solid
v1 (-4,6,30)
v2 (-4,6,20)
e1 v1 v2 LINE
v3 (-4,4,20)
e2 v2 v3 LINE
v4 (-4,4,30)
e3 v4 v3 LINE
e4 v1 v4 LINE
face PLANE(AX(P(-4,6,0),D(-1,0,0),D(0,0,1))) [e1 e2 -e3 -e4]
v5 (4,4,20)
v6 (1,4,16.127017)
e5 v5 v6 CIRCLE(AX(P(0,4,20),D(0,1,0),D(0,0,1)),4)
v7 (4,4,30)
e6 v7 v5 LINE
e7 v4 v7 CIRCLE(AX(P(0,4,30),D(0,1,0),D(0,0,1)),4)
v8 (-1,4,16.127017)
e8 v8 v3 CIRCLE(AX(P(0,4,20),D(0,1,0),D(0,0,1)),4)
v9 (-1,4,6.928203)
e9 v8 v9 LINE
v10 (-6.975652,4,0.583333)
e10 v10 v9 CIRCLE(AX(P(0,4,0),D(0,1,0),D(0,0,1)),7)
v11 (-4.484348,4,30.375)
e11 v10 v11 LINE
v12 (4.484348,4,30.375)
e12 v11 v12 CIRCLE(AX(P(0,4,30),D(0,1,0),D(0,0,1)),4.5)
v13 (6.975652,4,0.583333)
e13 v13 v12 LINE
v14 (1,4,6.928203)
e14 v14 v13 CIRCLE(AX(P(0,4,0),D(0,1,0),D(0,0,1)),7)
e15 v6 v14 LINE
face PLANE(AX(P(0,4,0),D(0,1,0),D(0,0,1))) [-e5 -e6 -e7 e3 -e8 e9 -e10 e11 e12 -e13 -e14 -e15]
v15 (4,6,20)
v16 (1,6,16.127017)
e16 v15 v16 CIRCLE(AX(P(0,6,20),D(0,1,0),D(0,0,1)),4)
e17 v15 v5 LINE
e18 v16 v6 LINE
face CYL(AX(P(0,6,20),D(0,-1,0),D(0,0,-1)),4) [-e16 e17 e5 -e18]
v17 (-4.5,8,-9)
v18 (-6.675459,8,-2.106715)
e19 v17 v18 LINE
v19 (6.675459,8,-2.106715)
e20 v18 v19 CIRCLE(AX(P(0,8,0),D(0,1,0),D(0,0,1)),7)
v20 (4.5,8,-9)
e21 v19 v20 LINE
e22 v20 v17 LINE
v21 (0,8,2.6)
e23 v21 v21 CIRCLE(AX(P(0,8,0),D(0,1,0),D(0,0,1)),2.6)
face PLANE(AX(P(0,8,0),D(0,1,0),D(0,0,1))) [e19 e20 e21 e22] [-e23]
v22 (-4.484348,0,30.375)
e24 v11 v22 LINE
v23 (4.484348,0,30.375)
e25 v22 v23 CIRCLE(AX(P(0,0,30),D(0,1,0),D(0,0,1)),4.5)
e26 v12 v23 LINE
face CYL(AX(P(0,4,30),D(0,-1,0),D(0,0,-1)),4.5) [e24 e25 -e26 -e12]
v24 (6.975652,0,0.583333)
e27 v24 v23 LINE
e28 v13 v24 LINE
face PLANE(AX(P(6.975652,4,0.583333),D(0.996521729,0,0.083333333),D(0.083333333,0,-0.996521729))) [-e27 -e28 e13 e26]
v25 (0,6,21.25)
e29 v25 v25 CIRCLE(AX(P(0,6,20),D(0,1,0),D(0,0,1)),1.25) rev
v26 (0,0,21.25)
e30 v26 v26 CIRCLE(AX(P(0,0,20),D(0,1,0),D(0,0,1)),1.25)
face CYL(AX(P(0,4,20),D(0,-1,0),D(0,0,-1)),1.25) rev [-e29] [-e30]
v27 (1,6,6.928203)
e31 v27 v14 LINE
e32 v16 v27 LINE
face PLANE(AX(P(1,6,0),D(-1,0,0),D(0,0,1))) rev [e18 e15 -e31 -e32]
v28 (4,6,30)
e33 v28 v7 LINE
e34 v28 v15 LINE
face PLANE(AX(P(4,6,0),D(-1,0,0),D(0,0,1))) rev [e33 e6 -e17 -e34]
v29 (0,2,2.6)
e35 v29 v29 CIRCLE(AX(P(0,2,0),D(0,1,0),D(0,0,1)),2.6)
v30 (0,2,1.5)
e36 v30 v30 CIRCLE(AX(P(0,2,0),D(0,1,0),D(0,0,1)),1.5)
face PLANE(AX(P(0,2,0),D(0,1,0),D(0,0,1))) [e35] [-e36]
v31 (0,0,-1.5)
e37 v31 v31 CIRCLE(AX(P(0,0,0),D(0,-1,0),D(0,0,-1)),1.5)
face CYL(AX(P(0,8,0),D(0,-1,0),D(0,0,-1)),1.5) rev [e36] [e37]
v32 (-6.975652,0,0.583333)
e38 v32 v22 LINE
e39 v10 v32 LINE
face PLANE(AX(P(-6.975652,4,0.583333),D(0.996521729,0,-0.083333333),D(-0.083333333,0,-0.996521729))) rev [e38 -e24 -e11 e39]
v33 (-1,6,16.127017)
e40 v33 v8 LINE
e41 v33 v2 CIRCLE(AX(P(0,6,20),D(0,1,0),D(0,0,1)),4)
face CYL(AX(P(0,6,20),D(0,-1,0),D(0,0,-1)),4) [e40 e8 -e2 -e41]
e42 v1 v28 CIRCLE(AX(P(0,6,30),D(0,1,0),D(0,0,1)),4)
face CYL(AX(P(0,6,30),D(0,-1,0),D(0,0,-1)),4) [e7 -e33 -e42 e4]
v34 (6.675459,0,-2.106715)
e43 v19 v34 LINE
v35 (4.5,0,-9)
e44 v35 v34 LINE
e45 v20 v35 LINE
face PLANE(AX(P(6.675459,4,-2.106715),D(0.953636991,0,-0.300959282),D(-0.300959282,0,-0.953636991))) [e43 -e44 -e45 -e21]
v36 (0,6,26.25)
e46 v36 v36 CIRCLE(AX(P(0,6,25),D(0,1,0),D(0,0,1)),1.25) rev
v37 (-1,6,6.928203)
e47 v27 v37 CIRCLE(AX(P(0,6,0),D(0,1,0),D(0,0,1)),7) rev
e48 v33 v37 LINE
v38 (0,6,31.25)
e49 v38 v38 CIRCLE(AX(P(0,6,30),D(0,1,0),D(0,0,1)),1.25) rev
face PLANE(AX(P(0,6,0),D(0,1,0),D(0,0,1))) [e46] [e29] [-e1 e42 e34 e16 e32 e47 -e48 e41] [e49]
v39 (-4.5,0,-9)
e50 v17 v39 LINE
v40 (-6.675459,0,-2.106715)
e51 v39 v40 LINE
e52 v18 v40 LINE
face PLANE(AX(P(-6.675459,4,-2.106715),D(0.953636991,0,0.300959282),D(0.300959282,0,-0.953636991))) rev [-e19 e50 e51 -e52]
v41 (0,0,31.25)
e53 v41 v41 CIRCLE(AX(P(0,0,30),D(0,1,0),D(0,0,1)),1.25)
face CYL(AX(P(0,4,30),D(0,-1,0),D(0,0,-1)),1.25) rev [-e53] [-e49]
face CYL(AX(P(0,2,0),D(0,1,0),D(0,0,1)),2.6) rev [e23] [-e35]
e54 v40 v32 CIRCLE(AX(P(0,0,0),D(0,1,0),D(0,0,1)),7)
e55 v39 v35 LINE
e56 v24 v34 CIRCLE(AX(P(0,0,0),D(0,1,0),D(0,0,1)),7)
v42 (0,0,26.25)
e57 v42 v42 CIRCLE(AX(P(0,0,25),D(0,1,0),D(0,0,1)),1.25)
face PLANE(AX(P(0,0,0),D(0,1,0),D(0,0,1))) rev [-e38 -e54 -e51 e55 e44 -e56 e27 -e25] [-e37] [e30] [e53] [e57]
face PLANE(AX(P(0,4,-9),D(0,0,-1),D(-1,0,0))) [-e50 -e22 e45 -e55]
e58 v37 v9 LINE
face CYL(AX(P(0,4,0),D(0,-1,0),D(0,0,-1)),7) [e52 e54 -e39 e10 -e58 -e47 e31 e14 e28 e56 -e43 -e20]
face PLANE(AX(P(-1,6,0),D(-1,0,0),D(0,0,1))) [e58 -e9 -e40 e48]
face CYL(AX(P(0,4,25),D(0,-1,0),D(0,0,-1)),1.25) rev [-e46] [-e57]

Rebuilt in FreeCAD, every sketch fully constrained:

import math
import FreeCAD as App
import Part
import Sketcher
Q = App.Units.Quantity

doc = App.newDocument("Part")
body = doc.addObject("PartDesign::Body", "Body")

# Sketch on XZ plane
sketch1 = doc.addObject("Sketcher::SketchObject", "Sketch")
body.addObject(sketch1)
sketch1.AttachmentSupport = (doc.XZ_Plane, [""])
sketch1.MapMode = "FlatFace"
sketch1.addGeometry([
    Part.LineSegment(App.Vector(4.5, -9, 0), App.Vector(-4.5, -9, 0)),  # 0
    Part.LineSegment(App.Vector(-4.5, -9, 0), App.Vector(-6.7, -2.1, 0)),  # 1
    Part.ArcOfCircle(Part.Circle(App.Vector(0, 0, 0), App.Vector(0, 0, 1), 7), math.radians(175), math.radians(198)),  # 2
    Part.LineSegment(App.Vector(-7, 0.6, 0), App.Vector(-4.5, 30.4, 0)),  # 3
    Part.ArcOfCircle(Part.Circle(App.Vector(0, 30, 0), App.Vector(0, 0, 1), 4.5), math.radians(5), math.radians(175)),  # 4
    Part.LineSegment(App.Vector(4.5, 30.4, 0), App.Vector(7, 0.6, 0)),  # 5
    Part.ArcOfCircle(Part.Circle(App.Vector(0, 0, 0), App.Vector(0, 0, 1), 7), math.radians(-18), math.radians(5)),  # 6
    Part.LineSegment(App.Vector(6.7, -2.1, 0), App.Vector(4.5, -9, 0)),  # 7
    Part.Circle(App.Vector(0, 30, 0), App.Vector(0, 0, 1), 1.2),  # 8
    Part.Circle(App.Vector(0, 25, 0), App.Vector(0, 0, 1), 1.2),  # 9
    Part.Circle(App.Vector(0, 20, 0), App.Vector(0, 0, 1), 1.2),  # 10
], False)
sketch1.addConstraint([
    Sketcher.Constraint("Coincident", 0, 2, 1, 1),
    Sketcher.Constraint("Tangent", 1, 2, 2, 2),
    Sketcher.Constraint("Tangent", 2, 1, 3, 1),
    Sketcher.Constraint("Tangent", 3, 2, 4, 2),
    Sketcher.Constraint("Tangent", 4, 1, 5, 1),
    Sketcher.Constraint("Tangent", 5, 2, 6, 2),
    Sketcher.Constraint("Tangent", 6, 1, 7, 1),
    Sketcher.Constraint("Coincident", 7, 2, 0, 1),
    Sketcher.Constraint("Horizontal", 0),
    Sketcher.Constraint("Coincident", 2, 3, -1, 1),
    Sketcher.Constraint("Coincident", 6, 3, -1, 1),
    Sketcher.Constraint("Coincident", 8, 3, 4, 3),
    Sketcher.Constraint("Equal", 2, 6),
    Sketcher.Constraint("Equal", 8, 9),
    Sketcher.Constraint("Equal", 9, 10),
    Sketcher.Constraint("PointOnObject", 4, 3, -2),
    Sketcher.Constraint("PointOnObject", 9, 3, -2),
    Sketcher.Constraint("PointOnObject", 10, 3, -2),
    Sketcher.Constraint("Horizontal", 1, 2, 6, 1),
    Sketcher.Constraint("Radius", 2, Q("7 mm")),
    Sketcher.Constraint("Diameter", 8, Q("2.5 mm")),
    Sketcher.Constraint("Radius", 4, Q("4.5 mm")),
    Sketcher.Constraint("DistanceX", 0, 2, 0, 1, Q("9 mm")),
    Sketcher.Constraint("DistanceY", -1, 1, 4, 3, Q("30 mm")),
    Sketcher.Constraint("DistanceY", -1, 1, 9, 3, Q("25 mm")),
    Sketcher.Constraint("DistanceY", -1, 1, 10, 3, Q("20 mm")),
    Sketcher.Constraint("DistanceY", 0, 2, -1, 1, Q("9 mm")),
])
pad1 = doc.addObject("PartDesign::Pad", "Pad")
body.addObject(pad1)
pad1.Profile = sketch1
pad1.Length = 4
pad1.Reversed = True

# Sketch on XZ plane
sketch2 = doc.addObject("Sketcher::SketchObject", "Sketch001")
body.addObject(sketch2)
sketch2.AttachmentSupport = (doc.XZ_Plane, [""])
sketch2.MapMode = "FlatFace"
sketch2.AttachmentOffset = App.Placement(App.Vector(0, 0, -4), App.Rotation())
sketch2.addGeometry([
    Part.ArcOfCircle(Part.Circle(App.Vector(0, 0, 0), App.Vector(0, 0, 1), 7), math.radians(175), math.radians(198)),  # 0
    Part.ArcOfCircle(Part.Circle(App.Vector(0, 0, 0), App.Vector(0, 0, 1), 7), math.radians(5), math.radians(175)),  # 1
    Part.ArcOfCircle(Part.Circle(App.Vector(0, 0, 0), App.Vector(0, 0, 1), 7), math.radians(0), math.radians(4.78)),  # 2
    Part.ArcOfCircle(Part.Circle(App.Vector(0, 0, 0), App.Vector(0, 0, 1), 7), math.radians(-17.52), math.radians(0)),  # 3
    Part.LineSegment(App.Vector(6.7, -2.1, 0), App.Vector(4.5, -9, 0)),  # 4
    Part.LineSegment(App.Vector(4.5, -9, 0), App.Vector(-4.5, -9, 0)),  # 5
    Part.LineSegment(App.Vector(-4.5, -9, 0), App.Vector(-6.7, -2.1, 0)),  # 6
], False)
sketch2.addConstraint([
    Sketcher.Constraint("Tangent", 0, 1, 1, 2),
    Sketcher.Constraint("Tangent", 1, 1, 2, 2),
    Sketcher.Constraint("Tangent", 2, 1, 3, 2),
    Sketcher.Constraint("Tangent", 3, 1, 4, 1),
    Sketcher.Constraint("Coincident", 4, 2, 5, 1),
    Sketcher.Constraint("Coincident", 5, 2, 6, 1),
    Sketcher.Constraint("Tangent", 6, 2, 0, 2),
    Sketcher.Constraint("Horizontal", 5),
    Sketcher.Constraint("Coincident", 0, 3, -1, 1),
    Sketcher.Constraint("Coincident", 2, 3, -1, 1),
    Sketcher.Constraint("Equal", 2, 3),
    Sketcher.Constraint("PointOnObject", 2, 1, -1),
    Sketcher.Constraint("Horizontal", 0, 1, 1, 1),
    Sketcher.Constraint("Horizontal", 3, 1, 6, 2),
    Sketcher.Constraint("Radius", 0, Q("7 mm")),
    Sketcher.Constraint("DistanceX", 5, 2, 5, 1, Q("9 mm")),
    Sketcher.Constraint("DistanceY", 4, 2, -1, 1, Q("9 mm")),
    Sketcher.Constraint("DistanceX", 0, 1, 2, 3, Q("6.975652 mm")),
])
pad2 = doc.addObject("PartDesign::Pad", "Pad001")
body.addObject(pad2)
pad2.Profile = sketch2
pad2.Length = 4
pad2.Reversed = True

# Sketch on XZ plane
sketch3 = doc.addObject("Sketcher::SketchObject", "Sketch002")
body.addObject(sketch3)
sketch3.AttachmentSupport = (doc.XZ_Plane, [""])
sketch3.MapMode = "FlatFace"
sketch3.AttachmentOffset = App.Placement(App.Vector(0, 0, -4), App.Rotation())
sketch3.addGeometry([
    Part.ArcOfCircle(Part.Circle(App.Vector(0, 20, 0), App.Vector(0, 0, 1), 4), math.radians(-76), math.radians(0)),  # 0
    Part.LineSegment(App.Vector(1, 16.1, 0), App.Vector(1, 6.9, 0)),  # 1
    Part.ArcOfCircle(Part.Circle(App.Vector(0, 0, 0), App.Vector(0, 0, 1), 7), math.radians(81.79), math.radians(98.21)),  # 2
    Part.LineSegment(App.Vector(-1, 6.9, 0), App.Vector(-1, 16.1, 0)),  # 3
    Part.ArcOfCircle(Part.Circle(App.Vector(0, 20, 0), App.Vector(0, 0, 1), 4), math.radians(180), math.radians(256)),  # 4
    Part.LineSegment(App.Vector(-4, 20, 0), App.Vector(-4, 30, 0)),  # 5
    Part.ArcOfCircle(Part.Circle(App.Vector(0, 30, 0), App.Vector(0, 0, 1), 4), math.radians(0), math.radians(180)),  # 6
    Part.LineSegment(App.Vector(4, 30, 0), App.Vector(4, 20, 0)),  # 7
    Part.Circle(App.Vector(0, 30, 0), App.Vector(0, 0, 1), 1.2),  # 8
    Part.Circle(App.Vector(0, 25, 0), App.Vector(0, 0, 1), 1.2),  # 9
    Part.Circle(App.Vector(0, 20, 0), App.Vector(0, 0, 1), 1.2),  # 10
], False)
sketch3.addConstraint([
    Sketcher.Constraint("Coincident", 0, 1, 1, 1),
    Sketcher.Constraint("Coincident", 1, 2, 2, 1),
    Sketcher.Constraint("Coincident", 2, 2, 3, 1),
    Sketcher.Constraint("Coincident", 3, 2, 4, 2),
    Sketcher.Constraint("Tangent", 4, 1, 5, 1),
    Sketcher.Constraint("Tangent", 5, 2, 6, 2),
    Sketcher.Constraint("Tangent", 6, 1, 7, 1),
    Sketcher.Constraint("Tangent", 7, 2, 0, 2),
    Sketcher.Constraint("Vertical", 1),
    Sketcher.Constraint("Vertical", 3),
    Sketcher.Constraint("Vertical", 5),
    Sketcher.Constraint("Vertical", 7),
    Sketcher.Constraint("Coincident", 2, 3, -1, 1),
    Sketcher.Constraint("Coincident", 4, 3, 0, 3),
    Sketcher.Constraint("Coincident", 8, 3, 6, 3),
    Sketcher.Constraint("Coincident", 10, 3, 0, 3),
    Sketcher.Constraint("Equal", 0, 4),
    Sketcher.Constraint("Equal", 8, 9),
    Sketcher.Constraint("Equal", 9, 10),
    Sketcher.Constraint("Symmetric", 0, 1, 3, 2, -2),
    Sketcher.Constraint("PointOnObject", 9, 3, -2),
    Sketcher.Constraint("Radius", 0, Q("4 mm")),
    Sketcher.Constraint("Radius", 2, Q("7 mm")),
    Sketcher.Constraint("Diameter", 8, Q("2.5 mm")),
    Sketcher.Constraint("DistanceY", 5, 1, 5, 2, Q("10 mm")),
    Sketcher.Constraint("DistanceY", -1, 1, 0, 3, Q("20 mm")),
    Sketcher.Constraint("DistanceY", -1, 1, 9, 3, Q("25 mm")),
    Sketcher.Constraint("DistanceX", -1, 1, 0, 1, Q("1 mm")),
])
pad3 = doc.addObject("PartDesign::Pad", "Pad002")
body.addObject(pad3)
pad3.Profile = sketch3
pad3.Length = 2
pad3.Reversed = True

# Sketch on XZ plane
sketch4 = doc.addObject("Sketcher::SketchObject", "Sketch003")
body.addObject(sketch4)
sketch4.AttachmentSupport = (doc.XZ_Plane, [""])
sketch4.MapMode = "FlatFace"
sketch4.AttachmentOffset = App.Placement(App.Vector(0, 0, -8), App.Rotation())
sketch4.addGeometry(Part.Circle(App.Vector(0, 0, 0), App.Vector(0, 0, 1), 2.6), False)
sketch4.addConstraint([
    Sketcher.Constraint("Coincident", 0, 3, -1, 1),
    Sketcher.Constraint("Diameter", 0, Q("5.2 mm")),
])
pocket1 = doc.addObject("PartDesign::Pocket", "Pocket")
body.addObject(pocket1)
pocket1.Profile = sketch4
pocket1.Length = 6
pocket1.Reversed = True

# Sketch on XZ plane
sketch5 = doc.addObject("Sketcher::SketchObject", "Sketch004")
body.addObject(sketch5)
sketch5.AttachmentSupport = (doc.XZ_Plane, [""])
sketch5.MapMode = "FlatFace"
sketch5.addGeometry(Part.Circle(App.Vector(0, 0, 0), App.Vector(0, 0, 1), 1.5), False)
sketch5.addConstraint([
    Sketcher.Constraint("Coincident", 0, 3, -1, 1),
    Sketcher.Constraint("Diameter", 0, Q("3 mm")),
])
pocket2 = doc.addObject("PartDesign::Pocket", "Pocket001")
body.addObject(pocket2)
pocket2.Profile = sketch5
pocket2.Type = "ThroughAll"

doc.recompute()
